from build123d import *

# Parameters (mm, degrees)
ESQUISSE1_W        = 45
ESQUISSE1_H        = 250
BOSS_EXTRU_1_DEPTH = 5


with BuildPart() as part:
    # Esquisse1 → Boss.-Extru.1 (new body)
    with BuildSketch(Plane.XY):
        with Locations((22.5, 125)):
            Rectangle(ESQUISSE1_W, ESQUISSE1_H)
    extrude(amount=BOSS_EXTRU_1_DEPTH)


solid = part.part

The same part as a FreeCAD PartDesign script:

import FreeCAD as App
import Part
import Sketcher
Q = App.Units.Quantity

doc = App.newDocument("Part")
body = doc.addObject("PartDesign::Body", "Body")

sketch1 = body.newObject("Sketcher::SketchObject", "Sketch")
sketch1.AttachmentSupport = (doc.getObject("XY_Plane"), [""])
sketch1.MapMode = "FlatFace"
sketch1.addGeometry(Part.LineSegment(App.Vector(0, 250, 0), App.Vector(0, 0, 0)), False)
sketch1.addGeometry(Part.LineSegment(App.Vector(0, 0, 0), App.Vector(45, 0, 0)), False)
sketch1.addGeometry(Part.LineSegment(App.Vector(45, 0, 0), App.Vector(45, 250, 0)), False)
sketch1.addGeometry(Part.LineSegment(App.Vector(45, 250, 0), App.Vector(0, 250, 0)), False)
sketch1.addConstraint(Sketcher.Constraint("Coincident", 0, 2, 1, 1))
sketch1.addConstraint(Sketcher.Constraint("Coincident", 1, 2, 2, 1))
sketch1.addConstraint(Sketcher.Constraint("Coincident", 2, 2, 3, 1))
sketch1.addConstraint(Sketcher.Constraint("Coincident", 3, 2, 0, 1))
sketch1.addConstraint(Sketcher.Constraint("Vertical", 0))
sketch1.addConstraint(Sketcher.Constraint("Horizontal", 1))
sketch1.addConstraint(Sketcher.Constraint("Vertical", 2))
sketch1.addConstraint(Sketcher.Constraint("Horizontal", 3))
sketch1.addConstraint(Sketcher.Constraint("Coincident", 0, 2, -1, 1))
sketch1.addConstraint(Sketcher.Constraint("DistanceX", 1, 1, 1, 2, Q("45 mm")))
sketch1.addConstraint(Sketcher.Constraint("DistanceY", 0, 2, 0, 1, Q("250 mm")))
pad1 = body.newObject("PartDesign::Pad", "Pad")
pad1.Profile = sketch1
pad1.Length = 5

doc.recompute()
